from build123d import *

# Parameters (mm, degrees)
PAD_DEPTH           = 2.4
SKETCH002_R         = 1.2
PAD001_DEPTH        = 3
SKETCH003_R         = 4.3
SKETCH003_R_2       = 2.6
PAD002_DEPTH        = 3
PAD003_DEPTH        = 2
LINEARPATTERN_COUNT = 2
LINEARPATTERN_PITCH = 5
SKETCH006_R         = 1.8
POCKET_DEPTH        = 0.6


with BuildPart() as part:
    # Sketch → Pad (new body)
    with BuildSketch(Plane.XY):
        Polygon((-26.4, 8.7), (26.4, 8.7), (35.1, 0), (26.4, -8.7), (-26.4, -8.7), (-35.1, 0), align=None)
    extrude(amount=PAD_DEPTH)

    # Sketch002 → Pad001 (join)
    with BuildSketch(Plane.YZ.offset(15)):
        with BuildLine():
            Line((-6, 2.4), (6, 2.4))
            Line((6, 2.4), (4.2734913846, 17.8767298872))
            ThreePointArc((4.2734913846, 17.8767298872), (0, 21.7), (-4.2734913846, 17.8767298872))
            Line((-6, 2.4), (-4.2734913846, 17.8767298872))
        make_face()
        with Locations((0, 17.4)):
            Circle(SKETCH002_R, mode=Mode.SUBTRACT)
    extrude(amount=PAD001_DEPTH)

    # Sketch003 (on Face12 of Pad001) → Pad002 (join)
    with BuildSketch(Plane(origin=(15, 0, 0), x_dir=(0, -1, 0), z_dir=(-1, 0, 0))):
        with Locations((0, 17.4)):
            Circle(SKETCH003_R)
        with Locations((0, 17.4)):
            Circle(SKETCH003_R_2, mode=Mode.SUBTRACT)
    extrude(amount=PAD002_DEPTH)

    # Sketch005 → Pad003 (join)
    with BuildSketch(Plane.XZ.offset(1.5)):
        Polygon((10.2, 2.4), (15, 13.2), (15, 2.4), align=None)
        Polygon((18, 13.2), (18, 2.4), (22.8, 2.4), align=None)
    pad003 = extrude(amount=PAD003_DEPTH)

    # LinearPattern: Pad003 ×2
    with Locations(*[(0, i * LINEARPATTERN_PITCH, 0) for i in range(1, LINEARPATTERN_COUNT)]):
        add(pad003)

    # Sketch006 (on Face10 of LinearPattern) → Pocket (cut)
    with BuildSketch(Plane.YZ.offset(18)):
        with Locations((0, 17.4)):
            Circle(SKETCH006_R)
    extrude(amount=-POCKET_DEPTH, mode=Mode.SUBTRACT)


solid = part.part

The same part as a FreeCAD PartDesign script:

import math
import FreeCAD as App
import Part
import Sketcher


def add_polygon(sketch, points):
    """Adds a closed chain of lines whose ends are joined by coincident constraints."""
    first, n = sketch.GeometryCount, len(points)
    for a, b in zip(points, points[1:] + points[:1]):
        sketch.addGeometry(Part.LineSegment(App.Vector(*a, 0), App.Vector(*b, 0)), False)
    for i in range(n):
        sketch.addConstraint(Sketcher.Constraint("Coincident", first + i, 2, first + (i + 1) % n, 1))

doc = App.newDocument("Part")
body = doc.addObject("PartDesign::Body", "Body")

sketch1 = body.newObject("Sketcher::SketchObject", "Sketch")
sketch1.AttachmentSupport = (doc.getObject("XY_Plane"), [""])
sketch1.MapMode = "FlatFace"
add_polygon(sketch1, [(26, 9), (-26, 9), (-35, 0), (-26, -9), (26, -9), (35, 0)])
sketch1.addConstraint([
    Sketcher.Constraint("Horizontal", 0),
    Sketcher.Constraint("Horizontal", 3),
    Sketcher.Constraint("Symmetric", 0, 2, 3, 2, -1, 1),
    Sketcher.Constraint("Symmetric", 1, 2, 4, 2, -1, 1),
    Sketcher.Constraint("PointOnObject", 1, 2, -1),
    Sketcher.Constraint("Perpendicular", 1, 2),
    Sketcher.Constraint("Perpendicular", 4, 5),
    Sketcher.Constraint("Vertical", 0, 2, 2, 2),
    Sketcher.Constraint("DistanceX", 0, 2, 0, 1, 52.8),
    Sketcher.Constraint("DistanceY", -1, 1, 0, 2, 8.7),
])
pad1 = body.newObject("PartDesign::Pad", "Pad")
pad1.Profile = sketch1
pad1.Length = 2.4

sketch2 = body.newObject("Sketcher::SketchObject", "Sketch001")
sketch2.AttachmentSupport = (doc.getObject("YZ_Plane"), [""])
sketch2.MapMode = "FlatFace"
sketch2.AttachmentOffset = App.Placement(App.Vector(0, 0, 15), App.Rotation())
sketch2.addGeometry([
    Part.LineSegment(App.Vector(-6, 2.4, 0), App.Vector(6, 2.4, 0)),
    Part.LineSegment(App.Vector(6, 2.4, 0), App.Vector(4.3, 17.9, 0)),
    Part.ArcOfCircle(Part.Circle(App.Vector(0, 17.4, 0), App.Vector(0, 0, 1), 4.3), math.radians(6), math.radians(174)),
    Part.LineSegment(App.Vector(-4.3, 17.9, 0), App.Vector(-6, 2.4, 0)),
    Part.Circle(App.Vector(0, 17.4, 0), App.Vector(0, 0, 1), 1.2),
], False)
sketch2.addConstraint([
    Sketcher.Constraint("Coincident", 0, 2, 1, 1),
    Sketcher.Constraint("Tangent", 1, 2, 2, 1),
    Sketcher.Constraint("Tangent", 2, 2, 3, 1),
    Sketcher.Constraint("Coincident", 3, 2, 0, 1),
    Sketcher.Constraint("Horizontal", 0),
    Sketcher.Constraint("Coincident", 4, 3, 2, 3),
    Sketcher.Constraint("Symmetric", 1, 2, 2, 2, -2),
    Sketcher.Constraint("Diameter", 4, 2.4),
    Sketcher.Constraint("Radius", 2, 4.3),
    Sketcher.Constraint("DistanceX", 0, 1, 0, 2, 12.0),
    Sketcher.Constraint("DistanceY", 0, 2, 2, 3, 15.0),
    Sketcher.Constraint("DistanceY", -1, 1, 2, 3, 17.4),
])
pad2 = body.newObject("PartDesign::Pad", "Pad001")
pad2.Profile = sketch2
pad2.Length = 3

sketch3 = body.newObject("Sketcher::SketchObject", "Sketch002")
sketch3.AttachmentSupport = (doc.getObject("YZ_Plane"), [""])
sketch3.MapMode = "FlatFace"
sketch3.AttachmentOffset = App.Placement(App.Vector(0, 0, 15), App.Rotation())
sketch3.addGeometry([
    Part.Circle(App.Vector(0, 17.4, 0), App.Vector(0, 0, 1), 4.3),
    Part.Circle(App.Vector(0, 17.4, 0), App.Vector(0, 0, 1), 2.6),
], False)
sketch3.addConstraint([
    Sketcher.Constraint("Coincident", 1, 3, 0, 3),
    Sketcher.Constraint("PointOnObject", 0, 3, -2),
    Sketcher.Constraint("Diameter", 0, 8.6),
    Sketcher.Constraint("Diameter", 1, 5.2),
    Sketcher.Constraint("DistanceY", -1, 1, 0, 3, 17.4),
])
pad3 = body.newObject("PartDesign::Pad", "Pad002")
pad3.Profile = sketch3
pad3.Length = 3
pad3.Reversed = True

sketch4 = body.newObject("Sketcher::SketchObject", "Sketch003")
sketch4.AttachmentSupport = (doc.getObject("XZ_Plane"), [""])
sketch4.MapMode = "FlatFace"
sketch4.AttachmentOffset = App.Placement(App.Vector(0, 0, 1.5), App.Rotation())
add_polygon(sketch4, [(15, 13.2), (10.2, 2.4), (15, 2.4)])
add_polygon(sketch4, [(18, 13.2), (18, 2.4), (22.8, 2.4)])
sketch4.addConstraint([
    Sketcher.Constraint("Horizontal", 1),
    Sketcher.Constraint("Vertical", 2),
    Sketcher.Constraint("Vertical", 3),
    Sketcher.Constraint("Horizontal", 4),
    Sketcher.Constraint("Horizontal", 1, 2, 3, 2),
    Sketcher.Constraint("Horizontal", 2, 2, 5, 2),
    Sketcher.Constraint("Equal", 1, 4),
    Sketcher.Constraint("DistanceX", 1, 1, 1, 2, 4.8),
    Sketcher.Constraint("DistanceY", 2, 1, 2, 2, 10.8),
    Sketcher.Constraint("DistanceX", -1, 1, 1, 2, 15.0),
    Sketcher.Constraint("DistanceX", -1, 1, 3, 2, 18.0),
    Sketcher.Constraint("DistanceY", -1, 1, 0, 2, 2.4),
])
pad4 = body.newObject("PartDesign::Pad", "Pad003")
pad4.Profile = sketch4
pad4.Length = 2
doc.recompute()

linearpattern = body.newObject("PartDesign::LinearPattern", "LinearPattern")
linearpattern.Originals = [pad4]
linearpattern.Direction = (doc.getObject("Y_Axis"), [""])
linearpattern.Mode = "offset"
linearpattern.Offset = 5
linearpattern.Occurrences = 2
body.Tip = linearpattern

sketch5 = body.newObject("Sketcher::SketchObject", "Sketch004")
sketch5.AttachmentSupport = (doc.getObject("YZ_Plane"), [""])
sketch5.MapMode = "FlatFace"
sketch5.AttachmentOffset = App.Placement(App.Vector(0, 0, 18), App.Rotation())
sketch5.addGeometry(Part.Circle(App.Vector(0, 17.4, 0), App.Vector(0, 0, 1), 1.8), False)
sketch5.addConstraint([
    Sketcher.Constraint("PointOnObject", 0, 3, -2),
    Sketcher.Constraint("Diameter", 0, 3.6),
    Sketcher.Constraint("DistanceY", -1, 1, 0, 3, 17.4),
])
pocket1 = body.newObject("PartDesign::Pocket", "Pocket")
pocket1.Profile = sketch5
pocket1.Length = 0.6

doc.recompute()
